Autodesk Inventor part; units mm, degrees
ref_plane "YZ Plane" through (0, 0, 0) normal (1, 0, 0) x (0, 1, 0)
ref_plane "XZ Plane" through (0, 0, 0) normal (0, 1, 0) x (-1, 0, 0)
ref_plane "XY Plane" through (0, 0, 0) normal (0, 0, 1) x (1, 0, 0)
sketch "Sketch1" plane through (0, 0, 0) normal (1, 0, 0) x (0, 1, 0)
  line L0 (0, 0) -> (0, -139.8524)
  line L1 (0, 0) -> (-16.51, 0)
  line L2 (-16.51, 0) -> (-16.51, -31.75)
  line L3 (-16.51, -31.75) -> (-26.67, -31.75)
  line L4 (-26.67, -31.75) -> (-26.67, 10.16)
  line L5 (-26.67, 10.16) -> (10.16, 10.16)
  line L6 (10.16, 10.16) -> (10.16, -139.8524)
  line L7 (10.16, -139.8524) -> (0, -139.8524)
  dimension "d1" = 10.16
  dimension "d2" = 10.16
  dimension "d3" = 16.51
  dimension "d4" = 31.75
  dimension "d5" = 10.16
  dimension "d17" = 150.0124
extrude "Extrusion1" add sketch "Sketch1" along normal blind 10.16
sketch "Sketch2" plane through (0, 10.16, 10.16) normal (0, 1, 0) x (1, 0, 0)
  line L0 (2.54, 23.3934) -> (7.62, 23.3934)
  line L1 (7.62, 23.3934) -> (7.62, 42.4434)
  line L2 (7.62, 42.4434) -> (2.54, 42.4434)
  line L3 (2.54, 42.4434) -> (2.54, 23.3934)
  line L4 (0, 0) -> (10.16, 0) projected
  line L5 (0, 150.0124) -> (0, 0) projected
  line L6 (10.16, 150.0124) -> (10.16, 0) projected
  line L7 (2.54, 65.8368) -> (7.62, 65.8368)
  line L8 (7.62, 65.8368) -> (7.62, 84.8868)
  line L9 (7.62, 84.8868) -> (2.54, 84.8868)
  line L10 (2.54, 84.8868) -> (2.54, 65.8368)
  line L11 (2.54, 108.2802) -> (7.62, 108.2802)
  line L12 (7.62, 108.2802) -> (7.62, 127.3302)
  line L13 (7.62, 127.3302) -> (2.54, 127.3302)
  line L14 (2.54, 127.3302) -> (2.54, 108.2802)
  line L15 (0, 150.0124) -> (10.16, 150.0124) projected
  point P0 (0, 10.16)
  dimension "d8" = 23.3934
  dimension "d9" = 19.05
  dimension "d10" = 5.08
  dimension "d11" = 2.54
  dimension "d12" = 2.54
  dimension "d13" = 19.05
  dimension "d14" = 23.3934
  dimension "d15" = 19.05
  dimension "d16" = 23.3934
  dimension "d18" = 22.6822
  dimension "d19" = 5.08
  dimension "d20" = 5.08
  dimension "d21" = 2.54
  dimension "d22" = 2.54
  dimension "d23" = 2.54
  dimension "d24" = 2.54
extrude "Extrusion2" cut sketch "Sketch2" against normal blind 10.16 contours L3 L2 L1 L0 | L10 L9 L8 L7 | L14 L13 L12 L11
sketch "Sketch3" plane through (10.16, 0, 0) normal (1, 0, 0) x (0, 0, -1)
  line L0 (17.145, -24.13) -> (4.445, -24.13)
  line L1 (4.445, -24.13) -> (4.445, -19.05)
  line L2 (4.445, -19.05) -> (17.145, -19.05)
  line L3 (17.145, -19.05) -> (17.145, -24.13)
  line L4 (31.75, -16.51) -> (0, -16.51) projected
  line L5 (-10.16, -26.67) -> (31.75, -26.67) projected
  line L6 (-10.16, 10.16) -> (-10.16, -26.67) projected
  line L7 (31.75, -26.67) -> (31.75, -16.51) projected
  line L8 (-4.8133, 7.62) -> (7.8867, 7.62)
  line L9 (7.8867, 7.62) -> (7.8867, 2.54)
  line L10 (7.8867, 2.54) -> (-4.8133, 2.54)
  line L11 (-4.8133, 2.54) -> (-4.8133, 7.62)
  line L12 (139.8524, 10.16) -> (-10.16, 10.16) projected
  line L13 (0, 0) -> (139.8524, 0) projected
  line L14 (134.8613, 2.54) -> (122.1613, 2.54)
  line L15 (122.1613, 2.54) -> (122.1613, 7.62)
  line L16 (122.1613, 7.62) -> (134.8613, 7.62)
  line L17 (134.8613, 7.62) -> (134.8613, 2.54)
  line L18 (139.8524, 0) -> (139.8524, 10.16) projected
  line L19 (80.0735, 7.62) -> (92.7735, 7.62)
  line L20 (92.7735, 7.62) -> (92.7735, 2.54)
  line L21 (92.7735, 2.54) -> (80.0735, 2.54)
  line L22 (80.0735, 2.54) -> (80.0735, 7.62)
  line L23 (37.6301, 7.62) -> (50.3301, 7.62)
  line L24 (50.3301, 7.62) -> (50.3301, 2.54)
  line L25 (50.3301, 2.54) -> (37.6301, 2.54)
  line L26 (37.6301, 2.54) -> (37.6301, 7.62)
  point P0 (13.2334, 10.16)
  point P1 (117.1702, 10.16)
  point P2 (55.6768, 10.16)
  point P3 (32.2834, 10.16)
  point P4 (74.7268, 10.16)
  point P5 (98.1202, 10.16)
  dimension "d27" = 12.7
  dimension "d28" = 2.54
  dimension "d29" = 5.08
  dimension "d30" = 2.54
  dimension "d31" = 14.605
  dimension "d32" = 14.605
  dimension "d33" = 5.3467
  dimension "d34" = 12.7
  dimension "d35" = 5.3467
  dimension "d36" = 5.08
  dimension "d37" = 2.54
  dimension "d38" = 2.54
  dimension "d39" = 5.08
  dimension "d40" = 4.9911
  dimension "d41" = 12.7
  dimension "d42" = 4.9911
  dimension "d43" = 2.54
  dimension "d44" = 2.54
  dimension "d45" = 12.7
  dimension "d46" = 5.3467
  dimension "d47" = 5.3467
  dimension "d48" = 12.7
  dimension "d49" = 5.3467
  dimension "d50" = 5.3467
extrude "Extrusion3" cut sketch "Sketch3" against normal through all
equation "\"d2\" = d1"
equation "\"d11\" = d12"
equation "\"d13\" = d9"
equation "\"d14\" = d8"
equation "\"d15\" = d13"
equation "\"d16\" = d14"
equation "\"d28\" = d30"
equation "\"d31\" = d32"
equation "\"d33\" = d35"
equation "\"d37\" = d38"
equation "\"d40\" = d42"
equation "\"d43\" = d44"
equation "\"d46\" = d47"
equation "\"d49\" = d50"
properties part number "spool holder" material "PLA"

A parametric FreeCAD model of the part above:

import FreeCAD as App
import Part
import Sketcher
from FreeCAD import Vector
Q = App.Units.Quantity

doc = App.newDocument("Part")
body = doc.addObject("PartDesign::Body", "Body")

sketch1 = doc.addObject("Sketcher::SketchObject", "Sketch")
body.addObject(sketch1)
sketch1.AttachmentSupport = (doc.YZ_Plane, [""])
sketch1.MapMode = "FlatFace"
sketch1.addGeometry(Part.LineSegment(Vector(-16.51, 0, 0), Vector(0, 0, 0)), False)
sketch1.addGeometry(Part.LineSegment(Vector(0, 0, 0), Vector(0, -139.8524, 0)), False)
sketch1.addGeometry(Part.LineSegment(Vector(0, -139.8524, 0), Vector(10.16, -139.8524, 0)), False)
sketch1.addGeometry(Part.LineSegment(Vector(10.16, -139.8524, 0), Vector(10.16, 10.16, 0)), False)
sketch1.addGeometry(Part.LineSegment(Vector(10.16, 10.16, 0), Vector(-26.67, 10.16, 0)), False)
sketch1.addGeometry(Part.LineSegment(Vector(-26.67, 10.16, 0), Vector(-26.67, -31.75, 0)), False)
sketch1.addGeometry(Part.LineSegment(Vector(-26.67, -31.75, 0), Vector(-16.51, -31.75, 0)), False)
sketch1.addGeometry(Part.LineSegment(Vector(-16.51, -31.75, 0), Vector(-16.51, 0, 0)), False)
sketch1.addConstraint(Sketcher.Constraint("Coincident", 0, 2, 1, 1))
sketch1.addConstraint(Sketcher.Constraint("Coincident", 1, 2, 2, 1))
sketch1.addConstraint(Sketcher.Constraint("Coincident", 2, 2, 3, 1))
sketch1.addConstraint(Sketcher.Constraint("Coincident", 3, 2, 4, 1))
sketch1.addConstraint(Sketcher.Constraint("Coincident", 4, 2, 5, 1))
sketch1.addConstraint(Sketcher.Constraint("Coincident", 5, 2, 6, 1))
sketch1.addConstraint(Sketcher.Constraint("Coincident", 6, 2, 7, 1))
sketch1.addConstraint(Sketcher.Constraint("Coincident", 7, 2, 0, 1))
sketch1.addConstraint(Sketcher.Constraint("Horizontal", 0))
sketch1.addConstraint(Sketcher.Constraint("Vertical", 1))
sketch1.addConstraint(Sketcher.Constraint("Horizontal", 2))
sketch1.addConstraint(Sketcher.Constraint("Vertical", 3))
sketch1.addConstraint(Sketcher.Constraint("Horizontal", 4))
sketch1.addConstraint(Sketcher.Constraint("Vertical", 5))
sketch1.addConstraint(Sketcher.Constraint("Horizontal", 6))
sketch1.addConstraint(Sketcher.Constraint("Vertical", 7))
sketch1.addConstraint(Sketcher.Constraint("Coincident", 0, 2, -1, 1))
sketch1.addConstraint(Sketcher.Constraint("Equal", 2, 6))
sketch1.addConstraint(Sketcher.Constraint("DistanceX", 2, 1, 2, 2, Q("0.4 in")))
sketch1.addConstraint(Sketcher.Constraint("DistanceX", 0, 1, 0, 2, Q("0.65 in")))
sketch1.addConstraint(Sketcher.Constraint("DistanceY", 7, 1, 7, 2, Q("1.25 in")))
sketch1.addConstraint(Sketcher.Constraint("DistanceY", -1, 1, 3, 2, Q("0.4 in")))
sketch1.addConstraint(Sketcher.Constraint("DistanceY", 3, 1, 3, 2, Q("5.906 in")))
pad1 = doc.addObject("PartDesign::Pad", "Pad")
body.addObject(pad1)
pad1.Profile = sketch1
pad1.Length = Q("0.4 in")

sketch2 = doc.addObject("Sketcher::SketchObject", "Sketch001")
body.addObject(sketch2)
sketch2.AttachmentSupport = (doc.XZ_Plane, [""])
sketch2.MapMode = "FlatFace"
sketch2.AttachmentOffset = App.Placement(Vector(0, 0, -0.4 * 25.4), App.Rotation())
sketch2.addGeometry(Part.LineSegment(Vector(2.54, -32.2834, 0), Vector(2.54, -13.2334, 0)), False)
sketch2.addGeometry(Part.LineSegment(Vector(2.54, -13.2334, 0), Vector(7.62, -13.2334, 0)), False)
sketch2.addGeometry(Part.LineSegment(Vector(7.62, -13.2334, 0), Vector(7.62, -32.2834, 0)), False)
sketch2.addGeometry(Part.LineSegment(Vector(7.62, -32.2834, 0), Vector(2.54, -32.2834, 0)), False)
sketch2.addGeometry(Part.LineSegment(Vector(2.54, -74.7268, 0), Vector(2.54, -55.6768, 0)), False)
sketch2.addGeometry(Part.LineSegment(Vector(2.54, -55.6768, 0), Vector(7.62, -55.6768, 0)), False)
sketch2.addGeometry(Part.LineSegment(Vector(7.62, -55.6768, 0), Vector(7.62, -74.7268, 0)), False)
sketch2.addGeometry(Part.LineSegment(Vector(7.62, -74.7268, 0), Vector(2.54, -74.7268, 0)), False)
sketch2.addGeometry(Part.LineSegment(Vector(2.54, -117.1702, 0), Vector(2.54, -98.1202, 0)), False)
sketch2.addGeometry(Part.LineSegment(Vector(2.54, -98.1202, 0), Vector(7.62, -98.1202, 0)), False)
sketch2.addGeometry(Part.LineSegment(Vector(7.62, -98.1202, 0), Vector(7.62, -117.1702, 0)), False)
sketch2.addGeometry(Part.LineSegment(Vector(7.62, -117.1702, 0), Vector(2.54, -117.1702, 0)), False)
sketch2.addConstraint(Sketcher.Constraint("Coincident", 0, 2, 1, 1))
sketch2.addConstraint(Sketcher.Constraint("Coincident", 1, 2, 2, 1))
sketch2.addConstraint(Sketcher.Constraint("Coincident", 2, 2, 3, 1))
sketch2.addConstraint(Sketcher.Constraint("Coincident", 3, 2, 0, 1))
sketch2.addConstraint(Sketcher.Constraint("Coincident", 4, 2, 5, 1))
sketch2.addConstraint(Sketcher.Constraint("Coincident", 5, 2, 6, 1))
sketch2.addConstraint(Sketcher.Constraint("Coincident", 6, 2, 7, 1))
sketch2.addConstraint(Sketcher.Constraint("Coincident", 7, 2, 4, 1))
sketch2.addConstraint(Sketcher.Constraint("Coincident", 8, 2, 9, 1))
sketch2.addConstraint(Sketcher.Constraint("Coincident", 9, 2, 10, 1))
sketch2.addConstraint(Sketcher.Constraint("Coincident", 10, 2, 11, 1))
sketch2.addConstraint(Sketcher.Constraint("Coincident", 11, 2, 8, 1))
sketch2.addConstraint(Sketcher.Constraint("Vertical", 0))
sketch2.addConstraint(Sketcher.Constraint("Horizontal", 1))
sketch2.addConstraint(Sketcher.Constraint("Vertical", 2))
sketch2.addConstraint(Sketcher.Constraint("Horizontal", 3))
sketch2.addConstraint(Sketcher.Constraint("Vertical", 4))
sketch2.addConstraint(Sketcher.Constraint("Horizontal", 5))
sketch2.addConstraint(Sketcher.Constraint("Vertical", 6))
sketch2.addConstraint(Sketcher.Constraint("Horizontal", 7))
sketch2.addConstraint(Sketcher.Constraint("Vertical", 8))
sketch2.addConstraint(Sketcher.Constraint("Horizontal", 9))
sketch2.addConstraint(Sketcher.Constraint("Vertical", 10))
sketch2.addConstraint(Sketcher.Constraint("Horizontal", 11))
sketch2.addConstraint(Sketcher.Constraint("Vertical", 3, 2, 4, 2))
sketch2.addConstraint(Sketcher.Constraint("Vertical", 2, 2, 5, 2))
sketch2.addConstraint(Sketcher.Constraint("Vertical", 7, 2, 8, 2))
sketch2.addConstraint(Sketcher.Constraint("Vertical", 6, 2, 9, 2))
sketch2.addConstraint(Sketcher.Constraint("Equal", 2, 4))
sketch2.addConstraint(Sketcher.Constraint("Equal", 6, 8))
sketch2.addConstraint(Sketcher.Constraint("DistanceX", 1, 1, 1, 2, Q("0.2 in")))
sketch2.addConstraint(Sketcher.Constraint("DistanceY", 0, 1, 0, 2, Q("0.75 in")))
sketch2.addConstraint(Sketcher.Constraint("DistanceX", -1, 1, 0, 2, Q("0.1 in")))
sketch2.addConstraint(Sketcher.Constraint("DistanceY", 4, 2, 3, 2, Q("0.921 in")))
sketch2.addConstraint(Sketcher.Constraint("DistanceY", 8, 2, 7, 2, Q("0.921 in")))
sketch2.addConstraint(Sketcher.Constraint("DistanceY", 0, 2, -1, 1, Q("0.521 in")))
pocket1 = doc.addObject("PartDesign::Pocket", "Pocket")
body.addObject(pocket1)
pocket1.Profile = sketch2
pocket1.Length = Q("0.4 in")
pocket1.Reversed = True

sketch3 = doc.addObject("Sketcher::SketchObject", "Sketch002")
body.addObject(sketch3)
sketch3.AttachmentSupport = (doc.YZ_Plane, [""])
sketch3.MapMode = "FlatFace"
sketch3.AttachmentOffset = App.Placement(Vector(0, 0, 0.4 * 25.4), App.Rotation())
sketch3.addGeometry(Part.LineSegment(Vector(-24.13, -4.445, 0), Vector(-24.13, -17.145, 0)), False)
sketch3.addGeometry(Part.LineSegment(Vector(-24.13, -17.145, 0), Vector(-19.05, -17.145, 0)), False)
sketch3.addGeometry(Part.LineSegment(Vector(-19.05, -17.145, 0), Vector(-19.05, -4.445, 0)), False)
sketch3.addGeometry(Part.LineSegment(Vector(-19.05, -4.445, 0), Vector(-24.13, -4.445, 0)), False)
sketch3.addGeometry(Part.LineSegment(Vector(7.62, -7.8867, 0), Vector(7.62, 4.8133, 0)), False)
sketch3.addGeometry(Part.LineSegment(Vector(7.62, 4.8133, 0), Vector(2.54, 4.8133, 0)), False)
sketch3.addGeometry(Part.LineSegment(Vector(2.54, 4.8133, 0), Vector(2.54, -7.8867, 0)), False)
sketch3.addGeometry(Part.LineSegment(Vector(2.54, -7.8867, 0), Vector(7.62, -7.8867, 0)), False)
sketch3.addGeometry(Part.LineSegment(Vector(2.54, -122.1613, 0), Vector(2.54, -134.8613, 0)), False)
sketch3.addGeometry(Part.LineSegment(Vector(2.54, -134.8613, 0), Vector(7.62, -134.8613, 0)), False)
sketch3.addGeometry(Part.LineSegment(Vector(7.62, -134.8613, 0), Vector(7.62, -122.1613, 0)), False)
sketch3.addGeometry(Part.LineSegment(Vector(7.62, -122.1613, 0), Vector(2.54, -122.1613, 0)), False)
sketch3.addGeometry(Part.LineSegment(Vector(7.62, -92.7735, 0), Vector(7.62, -80.0735, 0)), False)
sketch3.addGeometry(Part.LineSegment(Vector(7.62, -80.0735, 0), Vector(2.54, -80.0735, 0)), False)
sketch3.addGeometry(Part.LineSegment(Vector(2.54, -80.0735, 0), Vector(2.54, -92.7735, 0)), False)
sketch3.addGeometry(Part.LineSegment(Vector(2.54, -92.7735, 0), Vector(7.62, -92.7735, 0)), False)
sketch3.addGeometry(Part.LineSegment(Vector(7.62, -50.3301, 0), Vector(7.62, -37.6301, 0)), False)
sketch3.addGeometry(Part.LineSegment(Vector(7.62, -37.6301, 0), Vector(2.54, -37.6301, 0)), False)
sketch3.addGeometry(Part.LineSegment(Vector(2.54, -37.6301, 0), Vector(2.54, -50.3301, 0)), False)
sketch3.addGeometry(Part.LineSegment(Vector(2.54, -50.3301, 0), Vector(7.62, -50.3301, 0)), False)
sketch3.addConstraint(Sketcher.Constraint("Coincident", 0, 2, 1, 1))
sketch3.addConstraint(Sketcher.Constraint("Coincident", 1, 2, 2, 1))
sketch3.addConstraint(Sketcher.Constraint("Coincident", 2, 2, 3, 1))
sketch3.addConstraint(Sketcher.Constraint("Coincident", 3, 2, 0, 1))
sketch3.addConstraint(Sketcher.Constraint("Coincident", 4, 2, 5, 1))
sketch3.addConstraint(Sketcher.Constraint("Coincident", 5, 2, 6, 1))
sketch3.addConstraint(Sketcher.Constraint("Coincident", 6, 2, 7, 1))
sketch3.addConstraint(Sketcher.Constraint("Coincident", 7, 2, 4, 1))
sketch3.addConstraint(Sketcher.Constraint("Coincident", 8, 2, 9, 1))
sketch3.addConstraint(Sketcher.Constraint("Coincident", 9, 2, 10, 1))
sketch3.addConstraint(Sketcher.Constraint("Coincident", 10, 2, 11, 1))
sketch3.addConstraint(Sketcher.Constraint("Coincident", 11, 2, 8, 1))
sketch3.addConstraint(Sketcher.Constraint("Coincident", 12, 2, 13, 1))
sketch3.addConstraint(Sketcher.Constraint("Coincident", 13, 2, 14, 1))
sketch3.addConstraint(Sketcher.Constraint("Coincident", 14, 2, 15, 1))
sketch3.addConstraint(Sketcher.Constraint("Coincident", 15, 2, 12, 1))
sketch3.addConstraint(Sketcher.Constraint("Coincident", 16, 2, 17, 1))
sketch3.addConstraint(Sketcher.Constraint("Coincident", 17, 2, 18, 1))
sketch3.addConstraint(Sketcher.Constraint("Coincident", 18, 2, 19, 1))
sketch3.addConstraint(Sketcher.Constraint("Coincident", 19, 2, 16, 1))
sketch3.addConstraint(Sketcher.Constraint("Vertical", 0))
sketch3.addConstraint(Sketcher.Constraint("Horizontal", 1))
sketch3.addConstraint(Sketcher.Constraint("Vertical", 2))
sketch3.addConstraint(Sketcher.Constraint("Horizontal", 3))
sketch3.addConstraint(Sketcher.Constraint("Vertical", 4))
sketch3.addConstraint(Sketcher.Constraint("Horizontal", 5))
sketch3.addConstraint(Sketcher.Constraint("Vertical", 6))
sketch3.addConstraint(Sketcher.Constraint("Horizontal", 7))
sketch3.addConstraint(Sketcher.Constraint("Vertical", 8))
sketch3.addConstraint(Sketcher.Constraint("Horizontal", 9))
sketch3.addConstraint(Sketcher.Constraint("Vertical", 10))
sketch3.addConstraint(Sketcher.Constraint("Horizontal", 11))
sketch3.addConstraint(Sketcher.Constraint("Vertical", 12))
sketch3.addConstraint(Sketcher.Constraint("Horizontal", 13))
sketch3.addConstraint(Sketcher.Constraint("Vertical", 14))
sketch3.addConstraint(Sketcher.Constraint("Horizontal", 15))
sketch3.addConstraint(Sketcher.Constraint("Vertical", 16))
sketch3.addConstraint(Sketcher.Constraint("Horizontal", 17))
sketch3.addConstraint(Sketcher.Constraint("Vertical", 18))
sketch3.addConstraint(Sketcher.Constraint("Horizontal", 19))
sketch3.addConstraint(Sketcher.Constraint("Vertical", 6, 2, 8, 2))
sketch3.addConstraint(Sketcher.Constraint("Vertical", 7, 2, 9, 2))
sketch3.addConstraint(Sketcher.Constraint("Vertical", 10, 2, 12, 2))
sketch3.addConstraint(Sketcher.Constraint("Vertical", 11, 2, 13, 2))
sketch3.addConstraint(Sketcher.Constraint("Vertical", 15, 2, 16, 2))
sketch3.addConstraint(Sketcher.Constraint("Vertical", 14, 2, 17, 2))
sketch3.addConstraint(Sketcher.Constraint("Equal", 3, 5))
sketch3.addConstraint(Sketcher.Constraint("Equal", 2, 4))
sketch3.addConstraint(Sketcher.Constraint("Equal", 6, 8))
sketch3.addConstraint(Sketcher.Constraint("Equal", 10, 12))
sketch3.addConstraint(Sketcher.Constraint("Equal", 14, 16))
sketch3.addConstraint(Sketcher.Constraint("DistanceX", 1, 1, 1, 2, Q("0.2 in")))
sketch3.addConstraint(Sketcher.Constraint("DistanceY", 0, 2, 0, 1, Q("0.5 in")))
sketch3.addConstraint(Sketcher.Constraint("DistanceX", -1, 1, 5, 2, Q("0.1 in")))
sketch3.addConstraint(Sketcher.Constraint("DistanceX", 0, 2, -1, 1, Q("0.95 in")))
sketch3.addConstraint(Sketcher.Constraint("DistanceY", 0, 2, -1, 1, Q("0.675 in")))
sketch3.addConstraint(Sketcher.Constraint("DistanceY", 8, 2, 6, 2, Q("4.999 in")))
sketch3.addConstraint(Sketcher.Constraint("DistanceY", 10, 2, 12, 2, Q("1.657 in")))
sketch3.addConstraint(Sketcher.Constraint("DistanceY", 16, 2, 7, 2, Q("1.171 in")))
sketch3.addConstraint(Sketcher.Constraint("DistanceY", -1, 1, 4, 2, Q("0.1895 in")))
pocket2 = doc.addObject("PartDesign::Pocket", "Pocket001")
body.addObject(pocket2)
pocket2.Profile = sketch3
pocket2.Type = "ThroughAll"

doc.recompute()
